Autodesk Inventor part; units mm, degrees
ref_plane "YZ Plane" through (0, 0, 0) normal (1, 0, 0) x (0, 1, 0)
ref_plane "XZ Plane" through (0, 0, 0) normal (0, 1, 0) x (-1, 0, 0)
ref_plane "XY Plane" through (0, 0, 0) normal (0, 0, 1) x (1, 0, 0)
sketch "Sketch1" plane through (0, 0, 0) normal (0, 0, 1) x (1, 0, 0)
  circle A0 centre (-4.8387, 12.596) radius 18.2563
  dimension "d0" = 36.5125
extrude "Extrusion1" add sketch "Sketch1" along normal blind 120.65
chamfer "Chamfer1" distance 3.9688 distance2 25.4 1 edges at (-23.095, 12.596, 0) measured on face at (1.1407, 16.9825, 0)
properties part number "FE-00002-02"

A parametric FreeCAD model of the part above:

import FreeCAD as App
import Part
import Sketcher

V = App.Vector
Q = App.Units.Quantity


def edges_at(feature, points):
    """Names of the edges that pass closest to the given points."""
    edges = feature.Shape.Edges
    near = lambda p: min(range(len(edges)), key=lambda i: edges[i].distToShape(Part.Vertex(*p))[0])
    return sorted({f"Edge{near(p) + 1}" for p in points})

doc = App.newDocument("Part")
body = doc.addObject("PartDesign::Body", "Body")

# Sketch on XY plane
sketch1 = doc.addObject("Sketcher::SketchObject", "Sketch")
body.addObject(sketch1)
sketch1.AttachmentSupport = (doc.XY_Plane, [""])
sketch1.MapMode = "FlatFace"
sketch1.addGeometry(Part.Circle(V(-5, 13, 0), V(0, 0, 1), 18), False)
sketch1.addConstraint(Sketcher.Constraint("Diameter", 0, Q("1.4375 in")))
sketch1.addConstraint(Sketcher.Constraint("DistanceX", 0, 3, -1, 1, Q("0.1905 in")))
sketch1.addConstraint(Sketcher.Constraint("DistanceY", -1, 1, 0, 3, Q("0.4959 in")))
pad1 = doc.addObject("PartDesign::Pad", "Pad")
body.addObject(pad1)
pad1.Profile = sketch1
pad1.Length = Q("4.75 in")
doc.recompute()

chamfer = doc.addObject("PartDesign::Chamfer", "Chamfer")
body.addObject(chamfer)
chamfer.Base = (pad1, edges_at(pad1, [(-23.095, 12.596, 0)]))
chamfer.ChamferType = "Two distances"
chamfer.Size = Q("0.156252 in")
chamfer.Size2 = Q("1 in")
chamfer.FlipDirection = True

doc.recompute()
